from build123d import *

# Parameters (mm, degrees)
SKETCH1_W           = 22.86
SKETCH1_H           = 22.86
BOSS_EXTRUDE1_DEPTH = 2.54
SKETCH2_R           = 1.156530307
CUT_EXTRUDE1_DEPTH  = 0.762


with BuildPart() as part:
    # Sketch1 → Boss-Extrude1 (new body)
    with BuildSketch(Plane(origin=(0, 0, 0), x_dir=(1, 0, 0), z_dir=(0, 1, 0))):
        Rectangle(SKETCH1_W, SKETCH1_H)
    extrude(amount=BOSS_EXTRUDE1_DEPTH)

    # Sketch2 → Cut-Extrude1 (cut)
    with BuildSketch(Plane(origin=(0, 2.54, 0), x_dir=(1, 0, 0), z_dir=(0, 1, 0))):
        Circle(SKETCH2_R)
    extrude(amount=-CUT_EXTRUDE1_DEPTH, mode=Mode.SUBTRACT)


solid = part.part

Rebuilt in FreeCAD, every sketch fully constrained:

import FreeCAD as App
import Part
import Sketcher

V = App.Vector
Q = App.Units.Quantity

doc = App.newDocument("Part")
params = doc.addObject("Spreadsheet::Sheet", "Params")
for row, (alias, value) in enumerate([
    ("sketch1_width", "0.9 in"),
    ("pad1_length", "0.1 in"),
    ("pocket1_length", "0.03 in"),
], start=1):
    params.set(f"A{row}", alias)
    params.set(f"B{row}", "=" + value)
    params.setAlias(f"B{row}", alias)

body = doc.addObject("PartDesign::Body", "Body")

# Sketch on XZ plane
sketch1 = body.newObject("Sketcher::SketchObject", "Sketch")
sketch1.AttachmentSupport = (doc.getObject("XZ_Plane"), [""])
sketch1.MapMode = "FlatFace"
sketch1.addGeometry(Part.LineSegment(V(-11, -11, 0), V(-11, 11, 0)), False)
sketch1.addGeometry(Part.LineSegment(V(-11, 11, 0), V(11, 11, 0)), False)
sketch1.addGeometry(Part.LineSegment(V(11, 11, 0), V(11, -11, 0)), False)
sketch1.addGeometry(Part.LineSegment(V(11, -11, 0), V(-11, -11, 0)), False)
sketch1.addConstraint(Sketcher.Constraint("Coincident", 0, 2, 1, 1))
sketch1.addConstraint(Sketcher.Constraint("Coincident", 1, 2, 2, 1))
sketch1.addConstraint(Sketcher.Constraint("Coincident", 2, 2, 3, 1))
sketch1.addConstraint(Sketcher.Constraint("Coincident", 3, 2, 0, 1))
sketch1.addConstraint(Sketcher.Constraint("Vertical", 0))
sketch1.addConstraint(Sketcher.Constraint("Horizontal", 1))
sketch1.addConstraint(Sketcher.Constraint("Vertical", 2))
sketch1.addConstraint(Sketcher.Constraint("Horizontal", 3))
sketch1.addConstraint(Sketcher.Constraint("Symmetric", 0, 2, 2, 2, -1, 1))
sketch1.addConstraint(Sketcher.Constraint("Equal", 3, 0))
sketch1.addConstraint(Sketcher.Constraint("DistanceX", 1, 1, 1, 2, Q("0.9 in")))
sketch1.setExpression("Constraints[10]", "Params.sketch1_width")
pad1 = body.newObject("PartDesign::Pad", "Pad")
pad1.Profile = sketch1
pad1.setExpression("Length", "Params.pad1_length")
pad1.Reversed = True

# Sketch on XZ plane
sketch2 = body.newObject("Sketcher::SketchObject", "Sketch001")
sketch2.AttachmentSupport = (doc.getObject("XZ_Plane"), [""])
sketch2.MapMode = "FlatFace"
sketch2.AttachmentOffset = App.Placement(V(0, 0, -0.1 * 25.4), App.Rotation())
sketch2.addGeometry(Part.Circle(V(0, 0, 0), V(0, 0, 1), 1.2), False)
sketch2.addConstraint(Sketcher.Constraint("Coincident", 0, 3, -1, 1))
sketch2.addConstraint(Sketcher.Constraint("Diameter", 0, 2.313061))
pocket1 = body.newObject("PartDesign::Pocket", "Pocket")
pocket1.Profile = sketch2
pocket1.setExpression("Length", "Params.pocket1_length")
pocket1.Reversed = True

doc.recompute()
